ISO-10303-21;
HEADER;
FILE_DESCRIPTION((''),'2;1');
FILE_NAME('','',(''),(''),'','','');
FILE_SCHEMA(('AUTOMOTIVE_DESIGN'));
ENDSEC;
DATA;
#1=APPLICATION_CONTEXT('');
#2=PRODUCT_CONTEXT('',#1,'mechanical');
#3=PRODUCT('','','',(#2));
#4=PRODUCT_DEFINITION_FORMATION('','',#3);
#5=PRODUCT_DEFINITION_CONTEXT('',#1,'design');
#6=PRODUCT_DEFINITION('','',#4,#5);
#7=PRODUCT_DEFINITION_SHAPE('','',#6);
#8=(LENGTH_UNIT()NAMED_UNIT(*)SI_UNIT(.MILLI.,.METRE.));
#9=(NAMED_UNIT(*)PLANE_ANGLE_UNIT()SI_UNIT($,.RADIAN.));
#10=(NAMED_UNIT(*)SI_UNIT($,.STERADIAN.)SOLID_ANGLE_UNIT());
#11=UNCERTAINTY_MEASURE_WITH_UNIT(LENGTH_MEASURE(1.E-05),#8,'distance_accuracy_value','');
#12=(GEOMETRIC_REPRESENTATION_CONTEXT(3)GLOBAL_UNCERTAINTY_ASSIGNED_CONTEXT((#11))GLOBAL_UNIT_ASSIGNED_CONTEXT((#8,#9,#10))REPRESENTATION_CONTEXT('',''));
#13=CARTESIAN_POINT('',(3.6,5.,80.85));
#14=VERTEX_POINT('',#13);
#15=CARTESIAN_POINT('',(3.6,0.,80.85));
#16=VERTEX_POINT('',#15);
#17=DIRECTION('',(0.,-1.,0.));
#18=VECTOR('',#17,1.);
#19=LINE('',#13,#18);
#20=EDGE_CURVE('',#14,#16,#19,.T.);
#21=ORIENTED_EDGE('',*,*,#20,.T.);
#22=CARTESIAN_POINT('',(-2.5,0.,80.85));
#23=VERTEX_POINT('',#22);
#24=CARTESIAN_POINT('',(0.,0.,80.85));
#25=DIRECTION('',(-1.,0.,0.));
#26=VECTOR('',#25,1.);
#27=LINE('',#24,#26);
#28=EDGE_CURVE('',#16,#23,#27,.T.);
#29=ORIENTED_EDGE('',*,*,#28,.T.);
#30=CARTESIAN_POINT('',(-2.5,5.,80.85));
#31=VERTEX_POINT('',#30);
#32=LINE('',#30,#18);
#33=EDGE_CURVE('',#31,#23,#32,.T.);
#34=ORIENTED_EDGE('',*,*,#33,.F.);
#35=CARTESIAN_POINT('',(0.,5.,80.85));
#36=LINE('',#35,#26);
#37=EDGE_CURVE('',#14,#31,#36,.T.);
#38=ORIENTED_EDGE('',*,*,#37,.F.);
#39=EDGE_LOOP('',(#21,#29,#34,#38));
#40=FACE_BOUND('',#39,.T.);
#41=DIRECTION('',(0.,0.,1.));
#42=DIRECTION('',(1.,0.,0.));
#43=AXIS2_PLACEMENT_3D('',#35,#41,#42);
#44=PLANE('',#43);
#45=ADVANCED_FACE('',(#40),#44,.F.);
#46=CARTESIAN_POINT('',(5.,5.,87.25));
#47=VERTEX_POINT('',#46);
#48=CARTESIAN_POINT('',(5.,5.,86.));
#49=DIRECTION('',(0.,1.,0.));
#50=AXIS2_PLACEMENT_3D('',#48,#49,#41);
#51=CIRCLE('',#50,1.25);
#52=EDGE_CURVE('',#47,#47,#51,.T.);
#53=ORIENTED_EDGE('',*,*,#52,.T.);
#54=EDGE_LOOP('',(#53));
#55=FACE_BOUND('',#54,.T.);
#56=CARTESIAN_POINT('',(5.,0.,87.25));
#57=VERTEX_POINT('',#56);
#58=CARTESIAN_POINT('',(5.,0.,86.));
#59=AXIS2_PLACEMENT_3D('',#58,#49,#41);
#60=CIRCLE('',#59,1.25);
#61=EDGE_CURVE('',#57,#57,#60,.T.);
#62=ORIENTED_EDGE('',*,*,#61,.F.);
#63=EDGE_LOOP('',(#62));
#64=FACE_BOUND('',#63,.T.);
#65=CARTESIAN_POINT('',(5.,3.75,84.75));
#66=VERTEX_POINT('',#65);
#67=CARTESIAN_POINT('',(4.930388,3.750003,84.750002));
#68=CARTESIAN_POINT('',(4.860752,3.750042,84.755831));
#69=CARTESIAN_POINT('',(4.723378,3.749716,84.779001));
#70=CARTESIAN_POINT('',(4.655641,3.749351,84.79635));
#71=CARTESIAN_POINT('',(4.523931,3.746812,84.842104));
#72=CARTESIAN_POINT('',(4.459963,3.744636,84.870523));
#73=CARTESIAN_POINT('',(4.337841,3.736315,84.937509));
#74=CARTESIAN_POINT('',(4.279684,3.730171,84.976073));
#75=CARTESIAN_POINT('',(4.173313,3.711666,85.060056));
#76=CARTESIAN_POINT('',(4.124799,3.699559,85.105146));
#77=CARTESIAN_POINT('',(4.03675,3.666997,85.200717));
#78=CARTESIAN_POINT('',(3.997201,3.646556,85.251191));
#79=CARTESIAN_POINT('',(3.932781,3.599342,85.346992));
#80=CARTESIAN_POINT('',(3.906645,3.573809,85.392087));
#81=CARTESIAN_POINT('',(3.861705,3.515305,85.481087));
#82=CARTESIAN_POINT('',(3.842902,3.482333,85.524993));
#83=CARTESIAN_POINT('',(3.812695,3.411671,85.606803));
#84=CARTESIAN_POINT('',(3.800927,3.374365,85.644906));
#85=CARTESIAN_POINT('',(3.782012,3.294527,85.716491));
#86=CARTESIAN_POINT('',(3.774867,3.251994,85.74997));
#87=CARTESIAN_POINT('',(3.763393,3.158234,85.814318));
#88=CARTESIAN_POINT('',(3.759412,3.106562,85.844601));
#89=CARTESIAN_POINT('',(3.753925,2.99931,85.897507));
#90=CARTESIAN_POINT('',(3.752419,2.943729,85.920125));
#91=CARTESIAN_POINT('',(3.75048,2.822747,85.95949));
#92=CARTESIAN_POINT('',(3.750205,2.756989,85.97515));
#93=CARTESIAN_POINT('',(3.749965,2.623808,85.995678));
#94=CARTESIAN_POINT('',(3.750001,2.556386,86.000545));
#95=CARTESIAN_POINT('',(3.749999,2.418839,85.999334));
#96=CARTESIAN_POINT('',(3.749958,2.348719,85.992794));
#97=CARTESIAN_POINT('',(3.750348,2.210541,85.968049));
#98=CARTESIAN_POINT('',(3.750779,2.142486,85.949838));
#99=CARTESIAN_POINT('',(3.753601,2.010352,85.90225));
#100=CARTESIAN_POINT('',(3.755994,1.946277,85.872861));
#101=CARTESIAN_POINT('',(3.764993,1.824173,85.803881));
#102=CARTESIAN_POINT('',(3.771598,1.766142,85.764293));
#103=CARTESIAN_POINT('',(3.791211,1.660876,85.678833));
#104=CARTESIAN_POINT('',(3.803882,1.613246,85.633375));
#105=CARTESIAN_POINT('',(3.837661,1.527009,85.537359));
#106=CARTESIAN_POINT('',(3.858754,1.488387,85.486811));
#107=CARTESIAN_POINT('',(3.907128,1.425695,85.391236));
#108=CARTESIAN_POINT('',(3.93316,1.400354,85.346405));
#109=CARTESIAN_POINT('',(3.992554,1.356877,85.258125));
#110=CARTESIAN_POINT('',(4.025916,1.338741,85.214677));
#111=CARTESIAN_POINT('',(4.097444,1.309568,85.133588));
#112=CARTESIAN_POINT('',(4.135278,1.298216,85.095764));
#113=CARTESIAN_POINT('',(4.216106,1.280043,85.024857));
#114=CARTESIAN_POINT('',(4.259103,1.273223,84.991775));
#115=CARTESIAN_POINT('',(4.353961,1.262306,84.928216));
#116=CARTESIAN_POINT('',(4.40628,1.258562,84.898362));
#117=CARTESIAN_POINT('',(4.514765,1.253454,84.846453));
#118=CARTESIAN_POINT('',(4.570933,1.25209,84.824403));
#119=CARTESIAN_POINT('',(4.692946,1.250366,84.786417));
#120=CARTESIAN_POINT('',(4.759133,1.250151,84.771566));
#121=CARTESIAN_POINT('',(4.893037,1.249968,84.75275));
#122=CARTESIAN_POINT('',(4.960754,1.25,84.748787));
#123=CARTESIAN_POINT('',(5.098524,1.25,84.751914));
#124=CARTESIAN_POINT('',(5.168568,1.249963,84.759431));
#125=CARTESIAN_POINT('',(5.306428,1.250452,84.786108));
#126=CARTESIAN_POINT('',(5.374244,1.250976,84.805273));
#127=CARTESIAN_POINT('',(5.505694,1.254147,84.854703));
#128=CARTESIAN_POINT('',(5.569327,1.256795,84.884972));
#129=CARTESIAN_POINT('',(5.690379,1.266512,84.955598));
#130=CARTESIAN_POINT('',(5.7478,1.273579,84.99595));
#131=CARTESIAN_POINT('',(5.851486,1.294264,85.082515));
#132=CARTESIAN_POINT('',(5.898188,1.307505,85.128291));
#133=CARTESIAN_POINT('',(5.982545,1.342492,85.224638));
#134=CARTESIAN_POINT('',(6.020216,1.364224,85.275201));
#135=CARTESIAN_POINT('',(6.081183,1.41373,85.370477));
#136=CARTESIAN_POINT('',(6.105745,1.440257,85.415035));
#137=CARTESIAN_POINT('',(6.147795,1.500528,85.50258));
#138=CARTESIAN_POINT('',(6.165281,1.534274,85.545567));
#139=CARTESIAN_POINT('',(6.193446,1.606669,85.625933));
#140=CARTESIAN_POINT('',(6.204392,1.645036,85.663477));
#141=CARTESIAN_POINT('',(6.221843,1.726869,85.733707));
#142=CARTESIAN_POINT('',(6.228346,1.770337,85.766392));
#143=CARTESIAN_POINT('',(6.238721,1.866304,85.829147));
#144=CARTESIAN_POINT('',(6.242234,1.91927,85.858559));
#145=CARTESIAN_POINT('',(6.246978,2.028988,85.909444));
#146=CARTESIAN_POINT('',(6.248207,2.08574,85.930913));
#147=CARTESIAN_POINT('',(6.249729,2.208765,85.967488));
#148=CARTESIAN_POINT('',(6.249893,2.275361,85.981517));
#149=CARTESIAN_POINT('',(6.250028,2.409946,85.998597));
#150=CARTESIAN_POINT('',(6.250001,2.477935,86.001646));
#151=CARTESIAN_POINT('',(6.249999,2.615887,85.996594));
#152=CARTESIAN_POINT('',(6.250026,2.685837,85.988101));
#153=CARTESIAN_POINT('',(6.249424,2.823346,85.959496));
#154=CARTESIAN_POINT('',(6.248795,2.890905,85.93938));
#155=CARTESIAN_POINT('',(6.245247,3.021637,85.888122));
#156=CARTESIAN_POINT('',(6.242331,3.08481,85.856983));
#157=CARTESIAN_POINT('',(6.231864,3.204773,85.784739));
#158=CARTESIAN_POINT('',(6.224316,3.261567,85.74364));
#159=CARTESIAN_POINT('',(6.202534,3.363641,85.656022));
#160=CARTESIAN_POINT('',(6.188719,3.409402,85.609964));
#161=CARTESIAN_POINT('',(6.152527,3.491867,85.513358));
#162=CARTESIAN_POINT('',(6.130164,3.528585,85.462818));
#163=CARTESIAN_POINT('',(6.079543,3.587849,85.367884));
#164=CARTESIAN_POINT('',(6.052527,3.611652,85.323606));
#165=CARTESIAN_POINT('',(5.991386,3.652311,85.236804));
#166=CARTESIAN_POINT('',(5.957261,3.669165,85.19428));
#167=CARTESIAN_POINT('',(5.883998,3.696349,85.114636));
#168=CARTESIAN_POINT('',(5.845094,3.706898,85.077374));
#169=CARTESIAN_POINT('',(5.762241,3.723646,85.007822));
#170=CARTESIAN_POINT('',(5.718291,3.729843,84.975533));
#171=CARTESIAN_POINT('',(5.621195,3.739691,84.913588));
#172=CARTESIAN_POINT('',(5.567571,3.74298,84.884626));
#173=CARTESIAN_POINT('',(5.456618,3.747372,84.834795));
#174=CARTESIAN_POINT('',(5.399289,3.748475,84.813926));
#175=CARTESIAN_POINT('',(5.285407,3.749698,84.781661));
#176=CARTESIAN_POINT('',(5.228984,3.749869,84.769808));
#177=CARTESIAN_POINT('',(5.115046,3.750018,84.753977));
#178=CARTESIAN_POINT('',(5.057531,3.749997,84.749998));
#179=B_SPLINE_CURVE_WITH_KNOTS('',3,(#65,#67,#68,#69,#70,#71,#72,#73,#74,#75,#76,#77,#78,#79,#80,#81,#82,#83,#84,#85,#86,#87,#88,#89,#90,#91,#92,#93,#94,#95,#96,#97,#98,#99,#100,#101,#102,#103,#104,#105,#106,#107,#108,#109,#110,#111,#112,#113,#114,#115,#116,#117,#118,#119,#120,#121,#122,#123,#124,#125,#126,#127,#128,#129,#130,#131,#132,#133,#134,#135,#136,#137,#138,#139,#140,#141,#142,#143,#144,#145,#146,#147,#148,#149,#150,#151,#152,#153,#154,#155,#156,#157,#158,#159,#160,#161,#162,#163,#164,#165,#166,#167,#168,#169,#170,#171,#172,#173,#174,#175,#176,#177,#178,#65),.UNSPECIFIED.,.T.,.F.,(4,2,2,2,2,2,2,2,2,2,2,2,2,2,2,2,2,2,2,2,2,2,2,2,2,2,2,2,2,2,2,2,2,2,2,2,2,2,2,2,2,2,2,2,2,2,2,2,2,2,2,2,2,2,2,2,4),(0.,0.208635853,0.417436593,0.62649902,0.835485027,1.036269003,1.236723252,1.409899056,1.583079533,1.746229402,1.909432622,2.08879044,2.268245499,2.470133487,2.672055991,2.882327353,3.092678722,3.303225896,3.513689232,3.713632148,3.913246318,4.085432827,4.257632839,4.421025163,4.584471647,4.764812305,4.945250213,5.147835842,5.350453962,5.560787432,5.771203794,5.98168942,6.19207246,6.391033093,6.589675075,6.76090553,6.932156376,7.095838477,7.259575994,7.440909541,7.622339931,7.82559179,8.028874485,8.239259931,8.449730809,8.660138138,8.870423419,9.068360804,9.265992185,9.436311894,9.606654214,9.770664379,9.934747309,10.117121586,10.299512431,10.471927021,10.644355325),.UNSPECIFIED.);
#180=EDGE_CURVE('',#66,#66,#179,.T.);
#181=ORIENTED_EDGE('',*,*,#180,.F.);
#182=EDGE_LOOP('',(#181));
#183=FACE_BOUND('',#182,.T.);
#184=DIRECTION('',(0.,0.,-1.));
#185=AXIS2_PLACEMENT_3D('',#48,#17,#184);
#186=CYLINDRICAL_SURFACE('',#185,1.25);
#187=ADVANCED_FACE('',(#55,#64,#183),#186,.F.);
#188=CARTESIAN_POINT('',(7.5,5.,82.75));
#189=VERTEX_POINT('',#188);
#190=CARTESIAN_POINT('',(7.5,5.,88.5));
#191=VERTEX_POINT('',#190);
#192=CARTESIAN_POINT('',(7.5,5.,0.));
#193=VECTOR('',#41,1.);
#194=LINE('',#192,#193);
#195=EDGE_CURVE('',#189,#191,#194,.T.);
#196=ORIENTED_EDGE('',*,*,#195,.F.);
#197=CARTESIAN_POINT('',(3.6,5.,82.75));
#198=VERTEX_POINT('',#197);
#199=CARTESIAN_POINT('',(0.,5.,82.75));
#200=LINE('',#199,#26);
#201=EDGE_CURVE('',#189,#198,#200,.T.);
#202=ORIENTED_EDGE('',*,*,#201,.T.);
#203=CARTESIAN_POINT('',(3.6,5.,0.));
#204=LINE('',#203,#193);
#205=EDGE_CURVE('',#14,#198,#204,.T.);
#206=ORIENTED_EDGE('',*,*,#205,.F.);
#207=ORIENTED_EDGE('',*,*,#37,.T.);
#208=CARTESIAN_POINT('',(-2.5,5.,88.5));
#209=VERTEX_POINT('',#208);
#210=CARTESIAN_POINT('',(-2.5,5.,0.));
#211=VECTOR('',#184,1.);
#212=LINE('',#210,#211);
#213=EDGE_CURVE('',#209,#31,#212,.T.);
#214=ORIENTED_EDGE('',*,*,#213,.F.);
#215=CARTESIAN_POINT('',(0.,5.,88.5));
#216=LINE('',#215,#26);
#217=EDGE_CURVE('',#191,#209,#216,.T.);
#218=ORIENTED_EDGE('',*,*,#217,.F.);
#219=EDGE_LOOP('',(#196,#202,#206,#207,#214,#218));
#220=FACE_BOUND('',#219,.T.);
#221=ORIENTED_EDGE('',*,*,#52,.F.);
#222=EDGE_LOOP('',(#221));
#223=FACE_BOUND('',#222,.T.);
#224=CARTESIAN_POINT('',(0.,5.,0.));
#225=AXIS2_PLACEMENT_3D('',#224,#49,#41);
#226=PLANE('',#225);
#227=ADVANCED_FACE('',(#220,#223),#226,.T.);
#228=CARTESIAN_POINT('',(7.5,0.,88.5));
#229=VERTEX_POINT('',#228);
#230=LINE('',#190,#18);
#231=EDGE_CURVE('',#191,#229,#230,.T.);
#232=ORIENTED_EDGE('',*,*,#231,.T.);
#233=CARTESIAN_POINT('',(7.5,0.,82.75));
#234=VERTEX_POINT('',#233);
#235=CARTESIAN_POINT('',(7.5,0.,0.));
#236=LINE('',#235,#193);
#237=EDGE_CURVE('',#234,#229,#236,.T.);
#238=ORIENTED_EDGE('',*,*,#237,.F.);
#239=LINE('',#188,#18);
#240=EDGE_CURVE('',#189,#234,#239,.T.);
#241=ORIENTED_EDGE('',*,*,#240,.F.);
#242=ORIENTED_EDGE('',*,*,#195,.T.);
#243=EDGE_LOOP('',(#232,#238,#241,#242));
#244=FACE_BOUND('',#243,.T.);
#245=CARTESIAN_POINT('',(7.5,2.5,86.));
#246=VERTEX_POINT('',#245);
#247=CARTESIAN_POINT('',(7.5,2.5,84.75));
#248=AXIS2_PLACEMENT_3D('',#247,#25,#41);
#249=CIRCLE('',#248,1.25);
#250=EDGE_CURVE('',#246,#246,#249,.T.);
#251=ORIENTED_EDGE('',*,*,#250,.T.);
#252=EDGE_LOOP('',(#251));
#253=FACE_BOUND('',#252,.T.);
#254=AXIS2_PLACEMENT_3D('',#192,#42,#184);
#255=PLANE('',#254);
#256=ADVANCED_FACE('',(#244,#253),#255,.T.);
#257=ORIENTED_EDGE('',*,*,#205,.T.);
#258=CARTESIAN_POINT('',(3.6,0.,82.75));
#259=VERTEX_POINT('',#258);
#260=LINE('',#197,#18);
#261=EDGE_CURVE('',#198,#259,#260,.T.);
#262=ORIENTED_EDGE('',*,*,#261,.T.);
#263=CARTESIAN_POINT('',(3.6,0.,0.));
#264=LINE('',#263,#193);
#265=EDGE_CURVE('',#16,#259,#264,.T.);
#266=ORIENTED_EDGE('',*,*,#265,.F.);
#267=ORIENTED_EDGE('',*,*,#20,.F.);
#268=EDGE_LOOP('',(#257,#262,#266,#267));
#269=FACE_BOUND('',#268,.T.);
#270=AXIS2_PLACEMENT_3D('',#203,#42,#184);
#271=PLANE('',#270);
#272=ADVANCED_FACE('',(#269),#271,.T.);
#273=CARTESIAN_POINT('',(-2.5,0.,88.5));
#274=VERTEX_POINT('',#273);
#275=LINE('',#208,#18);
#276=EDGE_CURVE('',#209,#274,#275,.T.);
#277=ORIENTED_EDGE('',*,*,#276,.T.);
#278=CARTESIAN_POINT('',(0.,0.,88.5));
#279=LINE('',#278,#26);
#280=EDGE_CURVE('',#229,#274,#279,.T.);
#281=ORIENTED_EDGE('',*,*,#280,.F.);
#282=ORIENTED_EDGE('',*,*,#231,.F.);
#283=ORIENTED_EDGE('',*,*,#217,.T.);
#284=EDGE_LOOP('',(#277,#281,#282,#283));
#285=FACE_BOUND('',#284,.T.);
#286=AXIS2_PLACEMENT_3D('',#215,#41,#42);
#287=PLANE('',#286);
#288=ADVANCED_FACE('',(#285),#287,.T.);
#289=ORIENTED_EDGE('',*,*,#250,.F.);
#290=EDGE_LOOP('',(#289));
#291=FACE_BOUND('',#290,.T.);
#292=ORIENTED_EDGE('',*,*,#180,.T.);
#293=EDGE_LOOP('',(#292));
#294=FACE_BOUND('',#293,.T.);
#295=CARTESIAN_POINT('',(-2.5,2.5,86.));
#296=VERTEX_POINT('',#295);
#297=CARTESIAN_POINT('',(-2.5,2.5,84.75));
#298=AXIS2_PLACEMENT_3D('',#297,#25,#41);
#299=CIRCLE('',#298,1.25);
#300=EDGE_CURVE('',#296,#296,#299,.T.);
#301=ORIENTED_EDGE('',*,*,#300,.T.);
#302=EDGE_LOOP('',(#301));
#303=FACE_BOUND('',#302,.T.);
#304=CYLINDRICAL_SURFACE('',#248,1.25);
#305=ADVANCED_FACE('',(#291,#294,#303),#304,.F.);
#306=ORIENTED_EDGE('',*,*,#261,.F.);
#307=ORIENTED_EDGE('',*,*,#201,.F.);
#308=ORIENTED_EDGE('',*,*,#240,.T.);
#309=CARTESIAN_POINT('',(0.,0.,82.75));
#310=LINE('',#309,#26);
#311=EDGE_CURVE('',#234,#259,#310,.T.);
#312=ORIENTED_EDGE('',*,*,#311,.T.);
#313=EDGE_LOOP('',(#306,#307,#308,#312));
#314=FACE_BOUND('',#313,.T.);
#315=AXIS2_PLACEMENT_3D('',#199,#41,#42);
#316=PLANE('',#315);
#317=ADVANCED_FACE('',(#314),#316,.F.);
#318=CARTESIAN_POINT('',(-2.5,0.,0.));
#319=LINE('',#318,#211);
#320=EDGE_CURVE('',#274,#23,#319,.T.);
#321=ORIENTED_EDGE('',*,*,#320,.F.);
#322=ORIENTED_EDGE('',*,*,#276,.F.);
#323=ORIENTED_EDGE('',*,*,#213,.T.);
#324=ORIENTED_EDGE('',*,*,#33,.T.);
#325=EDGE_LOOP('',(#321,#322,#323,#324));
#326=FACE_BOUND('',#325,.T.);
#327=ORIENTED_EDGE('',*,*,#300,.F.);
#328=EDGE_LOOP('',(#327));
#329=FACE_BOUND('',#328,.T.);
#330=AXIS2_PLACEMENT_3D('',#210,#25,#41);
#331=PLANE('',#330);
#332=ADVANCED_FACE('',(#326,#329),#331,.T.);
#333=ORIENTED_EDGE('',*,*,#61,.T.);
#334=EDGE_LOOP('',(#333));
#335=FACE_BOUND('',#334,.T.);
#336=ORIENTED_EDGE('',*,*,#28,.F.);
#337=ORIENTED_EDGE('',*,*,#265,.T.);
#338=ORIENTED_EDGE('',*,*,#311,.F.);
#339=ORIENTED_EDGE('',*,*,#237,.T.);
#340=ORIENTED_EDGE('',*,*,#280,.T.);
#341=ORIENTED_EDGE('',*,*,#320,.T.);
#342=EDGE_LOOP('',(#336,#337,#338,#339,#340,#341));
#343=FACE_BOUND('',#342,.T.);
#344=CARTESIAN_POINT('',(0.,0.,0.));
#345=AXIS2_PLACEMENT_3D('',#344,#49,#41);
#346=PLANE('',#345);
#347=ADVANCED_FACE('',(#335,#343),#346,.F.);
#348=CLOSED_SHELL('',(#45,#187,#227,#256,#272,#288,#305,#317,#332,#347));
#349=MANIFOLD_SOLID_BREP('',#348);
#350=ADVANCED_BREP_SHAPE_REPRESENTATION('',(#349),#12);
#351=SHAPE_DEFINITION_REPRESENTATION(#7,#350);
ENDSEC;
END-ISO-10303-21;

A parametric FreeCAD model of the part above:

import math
import FreeCAD as App
import Part
import Sketcher
from FreeCAD import Vector
Q = App.Units.Quantity

doc = App.newDocument("Part")
params = doc.addObject("Spreadsheet::Sheet", "Params")
for row, (alias, value) in enumerate([
    ("sketch1_diameter", "2.5 mm"),
    ("sketch1_width", "10 mm"),
    ("sketch1_width2", "3.9 mm"),
    ("sketch1_height", "1.9 mm"),
    ("sketch1_height2", "5.75 mm"),
    ("pad1_length", "5 mm"),
    ("sketch2_radius", "1.25 mm"),
    ("pocket1_length", "10 mm"),
], start=1):
    params.set(f"A{row}", alias)
    params.set(f"B{row}", "=" + value)
    params.setAlias(f"B{row}", alias)

body = doc.addObject("PartDesign::Body", "Body")

# Sketch on XZ plane
sketch1 = body.newObject("Sketcher::SketchObject", "Sketch")
sketch1.AttachmentSupport = (doc.getObject("XZ_Plane"), [""])
sketch1.MapMode = "FlatFace"
sketch1.addGeometry([
    Part.LineSegment(Vector(7.5, 88.5, 0), Vector(7.5, 82.8, 0)),  # 0
    Part.LineSegment(Vector(7.5, 82.8, 0), Vector(3.6, 82.8, 0)),  # 1
    Part.LineSegment(Vector(3.6, 82.8, 0), Vector(3.6, 80.8, 0)),  # 2
    Part.LineSegment(Vector(3.6, 80.8, 0), Vector(-2.5, 80.8, 0)),  # 3
    Part.LineSegment(Vector(-2.5, 80.8, 0), Vector(-2.5, 88.5, 0)),  # 4
    Part.LineSegment(Vector(-2.5, 88.5, 0), Vector(7.5, 88.5, 0)),  # 5
    Part.Circle(Vector(5, 86, 0), Vector(0, 0, 1), 1.2),  # 6
], False)
sketch1.addConstraint([
    Sketcher.Constraint("Coincident", 0, 2, 1, 1),
    Sketcher.Constraint("Coincident", 1, 2, 2, 1),
    Sketcher.Constraint("Coincident", 2, 2, 3, 1),
    Sketcher.Constraint("Coincident", 3, 2, 4, 1),
    Sketcher.Constraint("Coincident", 4, 2, 5, 1),
    Sketcher.Constraint("Coincident", 5, 2, 0, 1),
    Sketcher.Constraint("Vertical", 0),
    Sketcher.Constraint("Horizontal", 1),
    Sketcher.Constraint("Vertical", 2),
    Sketcher.Constraint("Horizontal", 3),
    Sketcher.Constraint("Vertical", 4),
    Sketcher.Constraint("Horizontal", 5),
    Sketcher.Constraint("Diameter", 6, Q("2.5 mm")),
    Sketcher.Constraint("DistanceX", 5, 1, 5, 2, Q("10 mm")),
    Sketcher.Constraint("DistanceX", 1, 2, 1, 1, Q("3.9 mm")),
    Sketcher.Constraint("DistanceY", 2, 2, 2, 1, Q("1.9 mm")),
    Sketcher.Constraint("DistanceX", -1, 1, 6, 3, Q("5 mm")),
    Sketcher.Constraint("DistanceY", -1, 1, 6, 3, Q("86 mm")),
    Sketcher.Constraint("DistanceY", 0, 2, 0, 1, Q("5.75 mm")),
    Sketcher.Constraint("DistanceX", -1, 1, 0, 2, Q("7.5 mm")),
    Sketcher.Constraint("DistanceY", -1, 1, 4, 2, Q("88.5 mm")),
])
sketch1.setExpression("Constraints[12]", "Params.sketch1_diameter")
sketch1.setExpression("Constraints[13]", "Params.sketch1_width")
sketch1.setExpression("Constraints[14]", "Params.sketch1_width2")
sketch1.setExpression("Constraints[15]", "Params.sketch1_height")
sketch1.setExpression("Constraints[18]", "Params.sketch1_height2")
pad1 = body.newObject("PartDesign::Pad", "Pad")
pad1.Profile = sketch1
pad1.setExpression("Length", "Params.pad1_length")
pad1.Reversed = True

# Sketch on YZ plane
sketch2 = body.newObject("Sketcher::SketchObject", "Sketch001")
sketch2.AttachmentSupport = (doc.getObject("YZ_Plane"), [""])
sketch2.MapMode = "FlatFace"
sketch2.AttachmentOffset = App.Placement(Vector(0, 0, -2.5), App.Rotation())
sketch2.addGeometry([
    Part.ArcOfCircle(Part.Circle(Vector(2.5, 84.8, 0), Vector(0, 0, 1), 1.2), math.radians(180), math.radians(360)),
    Part.ArcOfCircle(Part.Circle(Vector(2.5, 84.7, 0), Vector(0, 0, 1), 1.3), math.radians(90), math.radians(180)),
    Part.ArcOfCircle(Part.Circle(Vector(2.5, 84.7, 0), Vector(0, 0, 1), 1.3), math.radians(0), math.radians(90)),
], False)
sketch2.addConstraint([
    Sketcher.Constraint("Tangent", 0, 1, 1, 2),
    Sketcher.Constraint("Tangent", 1, 1, 2, 2),
    Sketcher.Constraint("Tangent", 2, 1, 0, 2),
    Sketcher.Constraint("Horizontal", 2, 3, 0, 1),
    Sketcher.Constraint("Horizontal", 0, 1, 2, 1),
    Sketcher.Constraint("Vertical", 2, 3, 1, 1),
    Sketcher.Constraint("Radius", 0, Q("1.25 mm")),
    Sketcher.Constraint("DistanceY", -1, 1, 1, 1, Q("86 mm")),
    Sketcher.Constraint("DistanceX", -1, 1, 0, 3, Q("2.5 mm")),
])
sketch2.setExpression("Constraints[6]", "Params.sketch2_radius")
pocket1 = body.newObject("PartDesign::Pocket", "Pocket")
pocket1.Profile = sketch2
pocket1.setExpression("Length", "Params.pocket1_length")
pocket1.Reversed = True

doc.recompute()
